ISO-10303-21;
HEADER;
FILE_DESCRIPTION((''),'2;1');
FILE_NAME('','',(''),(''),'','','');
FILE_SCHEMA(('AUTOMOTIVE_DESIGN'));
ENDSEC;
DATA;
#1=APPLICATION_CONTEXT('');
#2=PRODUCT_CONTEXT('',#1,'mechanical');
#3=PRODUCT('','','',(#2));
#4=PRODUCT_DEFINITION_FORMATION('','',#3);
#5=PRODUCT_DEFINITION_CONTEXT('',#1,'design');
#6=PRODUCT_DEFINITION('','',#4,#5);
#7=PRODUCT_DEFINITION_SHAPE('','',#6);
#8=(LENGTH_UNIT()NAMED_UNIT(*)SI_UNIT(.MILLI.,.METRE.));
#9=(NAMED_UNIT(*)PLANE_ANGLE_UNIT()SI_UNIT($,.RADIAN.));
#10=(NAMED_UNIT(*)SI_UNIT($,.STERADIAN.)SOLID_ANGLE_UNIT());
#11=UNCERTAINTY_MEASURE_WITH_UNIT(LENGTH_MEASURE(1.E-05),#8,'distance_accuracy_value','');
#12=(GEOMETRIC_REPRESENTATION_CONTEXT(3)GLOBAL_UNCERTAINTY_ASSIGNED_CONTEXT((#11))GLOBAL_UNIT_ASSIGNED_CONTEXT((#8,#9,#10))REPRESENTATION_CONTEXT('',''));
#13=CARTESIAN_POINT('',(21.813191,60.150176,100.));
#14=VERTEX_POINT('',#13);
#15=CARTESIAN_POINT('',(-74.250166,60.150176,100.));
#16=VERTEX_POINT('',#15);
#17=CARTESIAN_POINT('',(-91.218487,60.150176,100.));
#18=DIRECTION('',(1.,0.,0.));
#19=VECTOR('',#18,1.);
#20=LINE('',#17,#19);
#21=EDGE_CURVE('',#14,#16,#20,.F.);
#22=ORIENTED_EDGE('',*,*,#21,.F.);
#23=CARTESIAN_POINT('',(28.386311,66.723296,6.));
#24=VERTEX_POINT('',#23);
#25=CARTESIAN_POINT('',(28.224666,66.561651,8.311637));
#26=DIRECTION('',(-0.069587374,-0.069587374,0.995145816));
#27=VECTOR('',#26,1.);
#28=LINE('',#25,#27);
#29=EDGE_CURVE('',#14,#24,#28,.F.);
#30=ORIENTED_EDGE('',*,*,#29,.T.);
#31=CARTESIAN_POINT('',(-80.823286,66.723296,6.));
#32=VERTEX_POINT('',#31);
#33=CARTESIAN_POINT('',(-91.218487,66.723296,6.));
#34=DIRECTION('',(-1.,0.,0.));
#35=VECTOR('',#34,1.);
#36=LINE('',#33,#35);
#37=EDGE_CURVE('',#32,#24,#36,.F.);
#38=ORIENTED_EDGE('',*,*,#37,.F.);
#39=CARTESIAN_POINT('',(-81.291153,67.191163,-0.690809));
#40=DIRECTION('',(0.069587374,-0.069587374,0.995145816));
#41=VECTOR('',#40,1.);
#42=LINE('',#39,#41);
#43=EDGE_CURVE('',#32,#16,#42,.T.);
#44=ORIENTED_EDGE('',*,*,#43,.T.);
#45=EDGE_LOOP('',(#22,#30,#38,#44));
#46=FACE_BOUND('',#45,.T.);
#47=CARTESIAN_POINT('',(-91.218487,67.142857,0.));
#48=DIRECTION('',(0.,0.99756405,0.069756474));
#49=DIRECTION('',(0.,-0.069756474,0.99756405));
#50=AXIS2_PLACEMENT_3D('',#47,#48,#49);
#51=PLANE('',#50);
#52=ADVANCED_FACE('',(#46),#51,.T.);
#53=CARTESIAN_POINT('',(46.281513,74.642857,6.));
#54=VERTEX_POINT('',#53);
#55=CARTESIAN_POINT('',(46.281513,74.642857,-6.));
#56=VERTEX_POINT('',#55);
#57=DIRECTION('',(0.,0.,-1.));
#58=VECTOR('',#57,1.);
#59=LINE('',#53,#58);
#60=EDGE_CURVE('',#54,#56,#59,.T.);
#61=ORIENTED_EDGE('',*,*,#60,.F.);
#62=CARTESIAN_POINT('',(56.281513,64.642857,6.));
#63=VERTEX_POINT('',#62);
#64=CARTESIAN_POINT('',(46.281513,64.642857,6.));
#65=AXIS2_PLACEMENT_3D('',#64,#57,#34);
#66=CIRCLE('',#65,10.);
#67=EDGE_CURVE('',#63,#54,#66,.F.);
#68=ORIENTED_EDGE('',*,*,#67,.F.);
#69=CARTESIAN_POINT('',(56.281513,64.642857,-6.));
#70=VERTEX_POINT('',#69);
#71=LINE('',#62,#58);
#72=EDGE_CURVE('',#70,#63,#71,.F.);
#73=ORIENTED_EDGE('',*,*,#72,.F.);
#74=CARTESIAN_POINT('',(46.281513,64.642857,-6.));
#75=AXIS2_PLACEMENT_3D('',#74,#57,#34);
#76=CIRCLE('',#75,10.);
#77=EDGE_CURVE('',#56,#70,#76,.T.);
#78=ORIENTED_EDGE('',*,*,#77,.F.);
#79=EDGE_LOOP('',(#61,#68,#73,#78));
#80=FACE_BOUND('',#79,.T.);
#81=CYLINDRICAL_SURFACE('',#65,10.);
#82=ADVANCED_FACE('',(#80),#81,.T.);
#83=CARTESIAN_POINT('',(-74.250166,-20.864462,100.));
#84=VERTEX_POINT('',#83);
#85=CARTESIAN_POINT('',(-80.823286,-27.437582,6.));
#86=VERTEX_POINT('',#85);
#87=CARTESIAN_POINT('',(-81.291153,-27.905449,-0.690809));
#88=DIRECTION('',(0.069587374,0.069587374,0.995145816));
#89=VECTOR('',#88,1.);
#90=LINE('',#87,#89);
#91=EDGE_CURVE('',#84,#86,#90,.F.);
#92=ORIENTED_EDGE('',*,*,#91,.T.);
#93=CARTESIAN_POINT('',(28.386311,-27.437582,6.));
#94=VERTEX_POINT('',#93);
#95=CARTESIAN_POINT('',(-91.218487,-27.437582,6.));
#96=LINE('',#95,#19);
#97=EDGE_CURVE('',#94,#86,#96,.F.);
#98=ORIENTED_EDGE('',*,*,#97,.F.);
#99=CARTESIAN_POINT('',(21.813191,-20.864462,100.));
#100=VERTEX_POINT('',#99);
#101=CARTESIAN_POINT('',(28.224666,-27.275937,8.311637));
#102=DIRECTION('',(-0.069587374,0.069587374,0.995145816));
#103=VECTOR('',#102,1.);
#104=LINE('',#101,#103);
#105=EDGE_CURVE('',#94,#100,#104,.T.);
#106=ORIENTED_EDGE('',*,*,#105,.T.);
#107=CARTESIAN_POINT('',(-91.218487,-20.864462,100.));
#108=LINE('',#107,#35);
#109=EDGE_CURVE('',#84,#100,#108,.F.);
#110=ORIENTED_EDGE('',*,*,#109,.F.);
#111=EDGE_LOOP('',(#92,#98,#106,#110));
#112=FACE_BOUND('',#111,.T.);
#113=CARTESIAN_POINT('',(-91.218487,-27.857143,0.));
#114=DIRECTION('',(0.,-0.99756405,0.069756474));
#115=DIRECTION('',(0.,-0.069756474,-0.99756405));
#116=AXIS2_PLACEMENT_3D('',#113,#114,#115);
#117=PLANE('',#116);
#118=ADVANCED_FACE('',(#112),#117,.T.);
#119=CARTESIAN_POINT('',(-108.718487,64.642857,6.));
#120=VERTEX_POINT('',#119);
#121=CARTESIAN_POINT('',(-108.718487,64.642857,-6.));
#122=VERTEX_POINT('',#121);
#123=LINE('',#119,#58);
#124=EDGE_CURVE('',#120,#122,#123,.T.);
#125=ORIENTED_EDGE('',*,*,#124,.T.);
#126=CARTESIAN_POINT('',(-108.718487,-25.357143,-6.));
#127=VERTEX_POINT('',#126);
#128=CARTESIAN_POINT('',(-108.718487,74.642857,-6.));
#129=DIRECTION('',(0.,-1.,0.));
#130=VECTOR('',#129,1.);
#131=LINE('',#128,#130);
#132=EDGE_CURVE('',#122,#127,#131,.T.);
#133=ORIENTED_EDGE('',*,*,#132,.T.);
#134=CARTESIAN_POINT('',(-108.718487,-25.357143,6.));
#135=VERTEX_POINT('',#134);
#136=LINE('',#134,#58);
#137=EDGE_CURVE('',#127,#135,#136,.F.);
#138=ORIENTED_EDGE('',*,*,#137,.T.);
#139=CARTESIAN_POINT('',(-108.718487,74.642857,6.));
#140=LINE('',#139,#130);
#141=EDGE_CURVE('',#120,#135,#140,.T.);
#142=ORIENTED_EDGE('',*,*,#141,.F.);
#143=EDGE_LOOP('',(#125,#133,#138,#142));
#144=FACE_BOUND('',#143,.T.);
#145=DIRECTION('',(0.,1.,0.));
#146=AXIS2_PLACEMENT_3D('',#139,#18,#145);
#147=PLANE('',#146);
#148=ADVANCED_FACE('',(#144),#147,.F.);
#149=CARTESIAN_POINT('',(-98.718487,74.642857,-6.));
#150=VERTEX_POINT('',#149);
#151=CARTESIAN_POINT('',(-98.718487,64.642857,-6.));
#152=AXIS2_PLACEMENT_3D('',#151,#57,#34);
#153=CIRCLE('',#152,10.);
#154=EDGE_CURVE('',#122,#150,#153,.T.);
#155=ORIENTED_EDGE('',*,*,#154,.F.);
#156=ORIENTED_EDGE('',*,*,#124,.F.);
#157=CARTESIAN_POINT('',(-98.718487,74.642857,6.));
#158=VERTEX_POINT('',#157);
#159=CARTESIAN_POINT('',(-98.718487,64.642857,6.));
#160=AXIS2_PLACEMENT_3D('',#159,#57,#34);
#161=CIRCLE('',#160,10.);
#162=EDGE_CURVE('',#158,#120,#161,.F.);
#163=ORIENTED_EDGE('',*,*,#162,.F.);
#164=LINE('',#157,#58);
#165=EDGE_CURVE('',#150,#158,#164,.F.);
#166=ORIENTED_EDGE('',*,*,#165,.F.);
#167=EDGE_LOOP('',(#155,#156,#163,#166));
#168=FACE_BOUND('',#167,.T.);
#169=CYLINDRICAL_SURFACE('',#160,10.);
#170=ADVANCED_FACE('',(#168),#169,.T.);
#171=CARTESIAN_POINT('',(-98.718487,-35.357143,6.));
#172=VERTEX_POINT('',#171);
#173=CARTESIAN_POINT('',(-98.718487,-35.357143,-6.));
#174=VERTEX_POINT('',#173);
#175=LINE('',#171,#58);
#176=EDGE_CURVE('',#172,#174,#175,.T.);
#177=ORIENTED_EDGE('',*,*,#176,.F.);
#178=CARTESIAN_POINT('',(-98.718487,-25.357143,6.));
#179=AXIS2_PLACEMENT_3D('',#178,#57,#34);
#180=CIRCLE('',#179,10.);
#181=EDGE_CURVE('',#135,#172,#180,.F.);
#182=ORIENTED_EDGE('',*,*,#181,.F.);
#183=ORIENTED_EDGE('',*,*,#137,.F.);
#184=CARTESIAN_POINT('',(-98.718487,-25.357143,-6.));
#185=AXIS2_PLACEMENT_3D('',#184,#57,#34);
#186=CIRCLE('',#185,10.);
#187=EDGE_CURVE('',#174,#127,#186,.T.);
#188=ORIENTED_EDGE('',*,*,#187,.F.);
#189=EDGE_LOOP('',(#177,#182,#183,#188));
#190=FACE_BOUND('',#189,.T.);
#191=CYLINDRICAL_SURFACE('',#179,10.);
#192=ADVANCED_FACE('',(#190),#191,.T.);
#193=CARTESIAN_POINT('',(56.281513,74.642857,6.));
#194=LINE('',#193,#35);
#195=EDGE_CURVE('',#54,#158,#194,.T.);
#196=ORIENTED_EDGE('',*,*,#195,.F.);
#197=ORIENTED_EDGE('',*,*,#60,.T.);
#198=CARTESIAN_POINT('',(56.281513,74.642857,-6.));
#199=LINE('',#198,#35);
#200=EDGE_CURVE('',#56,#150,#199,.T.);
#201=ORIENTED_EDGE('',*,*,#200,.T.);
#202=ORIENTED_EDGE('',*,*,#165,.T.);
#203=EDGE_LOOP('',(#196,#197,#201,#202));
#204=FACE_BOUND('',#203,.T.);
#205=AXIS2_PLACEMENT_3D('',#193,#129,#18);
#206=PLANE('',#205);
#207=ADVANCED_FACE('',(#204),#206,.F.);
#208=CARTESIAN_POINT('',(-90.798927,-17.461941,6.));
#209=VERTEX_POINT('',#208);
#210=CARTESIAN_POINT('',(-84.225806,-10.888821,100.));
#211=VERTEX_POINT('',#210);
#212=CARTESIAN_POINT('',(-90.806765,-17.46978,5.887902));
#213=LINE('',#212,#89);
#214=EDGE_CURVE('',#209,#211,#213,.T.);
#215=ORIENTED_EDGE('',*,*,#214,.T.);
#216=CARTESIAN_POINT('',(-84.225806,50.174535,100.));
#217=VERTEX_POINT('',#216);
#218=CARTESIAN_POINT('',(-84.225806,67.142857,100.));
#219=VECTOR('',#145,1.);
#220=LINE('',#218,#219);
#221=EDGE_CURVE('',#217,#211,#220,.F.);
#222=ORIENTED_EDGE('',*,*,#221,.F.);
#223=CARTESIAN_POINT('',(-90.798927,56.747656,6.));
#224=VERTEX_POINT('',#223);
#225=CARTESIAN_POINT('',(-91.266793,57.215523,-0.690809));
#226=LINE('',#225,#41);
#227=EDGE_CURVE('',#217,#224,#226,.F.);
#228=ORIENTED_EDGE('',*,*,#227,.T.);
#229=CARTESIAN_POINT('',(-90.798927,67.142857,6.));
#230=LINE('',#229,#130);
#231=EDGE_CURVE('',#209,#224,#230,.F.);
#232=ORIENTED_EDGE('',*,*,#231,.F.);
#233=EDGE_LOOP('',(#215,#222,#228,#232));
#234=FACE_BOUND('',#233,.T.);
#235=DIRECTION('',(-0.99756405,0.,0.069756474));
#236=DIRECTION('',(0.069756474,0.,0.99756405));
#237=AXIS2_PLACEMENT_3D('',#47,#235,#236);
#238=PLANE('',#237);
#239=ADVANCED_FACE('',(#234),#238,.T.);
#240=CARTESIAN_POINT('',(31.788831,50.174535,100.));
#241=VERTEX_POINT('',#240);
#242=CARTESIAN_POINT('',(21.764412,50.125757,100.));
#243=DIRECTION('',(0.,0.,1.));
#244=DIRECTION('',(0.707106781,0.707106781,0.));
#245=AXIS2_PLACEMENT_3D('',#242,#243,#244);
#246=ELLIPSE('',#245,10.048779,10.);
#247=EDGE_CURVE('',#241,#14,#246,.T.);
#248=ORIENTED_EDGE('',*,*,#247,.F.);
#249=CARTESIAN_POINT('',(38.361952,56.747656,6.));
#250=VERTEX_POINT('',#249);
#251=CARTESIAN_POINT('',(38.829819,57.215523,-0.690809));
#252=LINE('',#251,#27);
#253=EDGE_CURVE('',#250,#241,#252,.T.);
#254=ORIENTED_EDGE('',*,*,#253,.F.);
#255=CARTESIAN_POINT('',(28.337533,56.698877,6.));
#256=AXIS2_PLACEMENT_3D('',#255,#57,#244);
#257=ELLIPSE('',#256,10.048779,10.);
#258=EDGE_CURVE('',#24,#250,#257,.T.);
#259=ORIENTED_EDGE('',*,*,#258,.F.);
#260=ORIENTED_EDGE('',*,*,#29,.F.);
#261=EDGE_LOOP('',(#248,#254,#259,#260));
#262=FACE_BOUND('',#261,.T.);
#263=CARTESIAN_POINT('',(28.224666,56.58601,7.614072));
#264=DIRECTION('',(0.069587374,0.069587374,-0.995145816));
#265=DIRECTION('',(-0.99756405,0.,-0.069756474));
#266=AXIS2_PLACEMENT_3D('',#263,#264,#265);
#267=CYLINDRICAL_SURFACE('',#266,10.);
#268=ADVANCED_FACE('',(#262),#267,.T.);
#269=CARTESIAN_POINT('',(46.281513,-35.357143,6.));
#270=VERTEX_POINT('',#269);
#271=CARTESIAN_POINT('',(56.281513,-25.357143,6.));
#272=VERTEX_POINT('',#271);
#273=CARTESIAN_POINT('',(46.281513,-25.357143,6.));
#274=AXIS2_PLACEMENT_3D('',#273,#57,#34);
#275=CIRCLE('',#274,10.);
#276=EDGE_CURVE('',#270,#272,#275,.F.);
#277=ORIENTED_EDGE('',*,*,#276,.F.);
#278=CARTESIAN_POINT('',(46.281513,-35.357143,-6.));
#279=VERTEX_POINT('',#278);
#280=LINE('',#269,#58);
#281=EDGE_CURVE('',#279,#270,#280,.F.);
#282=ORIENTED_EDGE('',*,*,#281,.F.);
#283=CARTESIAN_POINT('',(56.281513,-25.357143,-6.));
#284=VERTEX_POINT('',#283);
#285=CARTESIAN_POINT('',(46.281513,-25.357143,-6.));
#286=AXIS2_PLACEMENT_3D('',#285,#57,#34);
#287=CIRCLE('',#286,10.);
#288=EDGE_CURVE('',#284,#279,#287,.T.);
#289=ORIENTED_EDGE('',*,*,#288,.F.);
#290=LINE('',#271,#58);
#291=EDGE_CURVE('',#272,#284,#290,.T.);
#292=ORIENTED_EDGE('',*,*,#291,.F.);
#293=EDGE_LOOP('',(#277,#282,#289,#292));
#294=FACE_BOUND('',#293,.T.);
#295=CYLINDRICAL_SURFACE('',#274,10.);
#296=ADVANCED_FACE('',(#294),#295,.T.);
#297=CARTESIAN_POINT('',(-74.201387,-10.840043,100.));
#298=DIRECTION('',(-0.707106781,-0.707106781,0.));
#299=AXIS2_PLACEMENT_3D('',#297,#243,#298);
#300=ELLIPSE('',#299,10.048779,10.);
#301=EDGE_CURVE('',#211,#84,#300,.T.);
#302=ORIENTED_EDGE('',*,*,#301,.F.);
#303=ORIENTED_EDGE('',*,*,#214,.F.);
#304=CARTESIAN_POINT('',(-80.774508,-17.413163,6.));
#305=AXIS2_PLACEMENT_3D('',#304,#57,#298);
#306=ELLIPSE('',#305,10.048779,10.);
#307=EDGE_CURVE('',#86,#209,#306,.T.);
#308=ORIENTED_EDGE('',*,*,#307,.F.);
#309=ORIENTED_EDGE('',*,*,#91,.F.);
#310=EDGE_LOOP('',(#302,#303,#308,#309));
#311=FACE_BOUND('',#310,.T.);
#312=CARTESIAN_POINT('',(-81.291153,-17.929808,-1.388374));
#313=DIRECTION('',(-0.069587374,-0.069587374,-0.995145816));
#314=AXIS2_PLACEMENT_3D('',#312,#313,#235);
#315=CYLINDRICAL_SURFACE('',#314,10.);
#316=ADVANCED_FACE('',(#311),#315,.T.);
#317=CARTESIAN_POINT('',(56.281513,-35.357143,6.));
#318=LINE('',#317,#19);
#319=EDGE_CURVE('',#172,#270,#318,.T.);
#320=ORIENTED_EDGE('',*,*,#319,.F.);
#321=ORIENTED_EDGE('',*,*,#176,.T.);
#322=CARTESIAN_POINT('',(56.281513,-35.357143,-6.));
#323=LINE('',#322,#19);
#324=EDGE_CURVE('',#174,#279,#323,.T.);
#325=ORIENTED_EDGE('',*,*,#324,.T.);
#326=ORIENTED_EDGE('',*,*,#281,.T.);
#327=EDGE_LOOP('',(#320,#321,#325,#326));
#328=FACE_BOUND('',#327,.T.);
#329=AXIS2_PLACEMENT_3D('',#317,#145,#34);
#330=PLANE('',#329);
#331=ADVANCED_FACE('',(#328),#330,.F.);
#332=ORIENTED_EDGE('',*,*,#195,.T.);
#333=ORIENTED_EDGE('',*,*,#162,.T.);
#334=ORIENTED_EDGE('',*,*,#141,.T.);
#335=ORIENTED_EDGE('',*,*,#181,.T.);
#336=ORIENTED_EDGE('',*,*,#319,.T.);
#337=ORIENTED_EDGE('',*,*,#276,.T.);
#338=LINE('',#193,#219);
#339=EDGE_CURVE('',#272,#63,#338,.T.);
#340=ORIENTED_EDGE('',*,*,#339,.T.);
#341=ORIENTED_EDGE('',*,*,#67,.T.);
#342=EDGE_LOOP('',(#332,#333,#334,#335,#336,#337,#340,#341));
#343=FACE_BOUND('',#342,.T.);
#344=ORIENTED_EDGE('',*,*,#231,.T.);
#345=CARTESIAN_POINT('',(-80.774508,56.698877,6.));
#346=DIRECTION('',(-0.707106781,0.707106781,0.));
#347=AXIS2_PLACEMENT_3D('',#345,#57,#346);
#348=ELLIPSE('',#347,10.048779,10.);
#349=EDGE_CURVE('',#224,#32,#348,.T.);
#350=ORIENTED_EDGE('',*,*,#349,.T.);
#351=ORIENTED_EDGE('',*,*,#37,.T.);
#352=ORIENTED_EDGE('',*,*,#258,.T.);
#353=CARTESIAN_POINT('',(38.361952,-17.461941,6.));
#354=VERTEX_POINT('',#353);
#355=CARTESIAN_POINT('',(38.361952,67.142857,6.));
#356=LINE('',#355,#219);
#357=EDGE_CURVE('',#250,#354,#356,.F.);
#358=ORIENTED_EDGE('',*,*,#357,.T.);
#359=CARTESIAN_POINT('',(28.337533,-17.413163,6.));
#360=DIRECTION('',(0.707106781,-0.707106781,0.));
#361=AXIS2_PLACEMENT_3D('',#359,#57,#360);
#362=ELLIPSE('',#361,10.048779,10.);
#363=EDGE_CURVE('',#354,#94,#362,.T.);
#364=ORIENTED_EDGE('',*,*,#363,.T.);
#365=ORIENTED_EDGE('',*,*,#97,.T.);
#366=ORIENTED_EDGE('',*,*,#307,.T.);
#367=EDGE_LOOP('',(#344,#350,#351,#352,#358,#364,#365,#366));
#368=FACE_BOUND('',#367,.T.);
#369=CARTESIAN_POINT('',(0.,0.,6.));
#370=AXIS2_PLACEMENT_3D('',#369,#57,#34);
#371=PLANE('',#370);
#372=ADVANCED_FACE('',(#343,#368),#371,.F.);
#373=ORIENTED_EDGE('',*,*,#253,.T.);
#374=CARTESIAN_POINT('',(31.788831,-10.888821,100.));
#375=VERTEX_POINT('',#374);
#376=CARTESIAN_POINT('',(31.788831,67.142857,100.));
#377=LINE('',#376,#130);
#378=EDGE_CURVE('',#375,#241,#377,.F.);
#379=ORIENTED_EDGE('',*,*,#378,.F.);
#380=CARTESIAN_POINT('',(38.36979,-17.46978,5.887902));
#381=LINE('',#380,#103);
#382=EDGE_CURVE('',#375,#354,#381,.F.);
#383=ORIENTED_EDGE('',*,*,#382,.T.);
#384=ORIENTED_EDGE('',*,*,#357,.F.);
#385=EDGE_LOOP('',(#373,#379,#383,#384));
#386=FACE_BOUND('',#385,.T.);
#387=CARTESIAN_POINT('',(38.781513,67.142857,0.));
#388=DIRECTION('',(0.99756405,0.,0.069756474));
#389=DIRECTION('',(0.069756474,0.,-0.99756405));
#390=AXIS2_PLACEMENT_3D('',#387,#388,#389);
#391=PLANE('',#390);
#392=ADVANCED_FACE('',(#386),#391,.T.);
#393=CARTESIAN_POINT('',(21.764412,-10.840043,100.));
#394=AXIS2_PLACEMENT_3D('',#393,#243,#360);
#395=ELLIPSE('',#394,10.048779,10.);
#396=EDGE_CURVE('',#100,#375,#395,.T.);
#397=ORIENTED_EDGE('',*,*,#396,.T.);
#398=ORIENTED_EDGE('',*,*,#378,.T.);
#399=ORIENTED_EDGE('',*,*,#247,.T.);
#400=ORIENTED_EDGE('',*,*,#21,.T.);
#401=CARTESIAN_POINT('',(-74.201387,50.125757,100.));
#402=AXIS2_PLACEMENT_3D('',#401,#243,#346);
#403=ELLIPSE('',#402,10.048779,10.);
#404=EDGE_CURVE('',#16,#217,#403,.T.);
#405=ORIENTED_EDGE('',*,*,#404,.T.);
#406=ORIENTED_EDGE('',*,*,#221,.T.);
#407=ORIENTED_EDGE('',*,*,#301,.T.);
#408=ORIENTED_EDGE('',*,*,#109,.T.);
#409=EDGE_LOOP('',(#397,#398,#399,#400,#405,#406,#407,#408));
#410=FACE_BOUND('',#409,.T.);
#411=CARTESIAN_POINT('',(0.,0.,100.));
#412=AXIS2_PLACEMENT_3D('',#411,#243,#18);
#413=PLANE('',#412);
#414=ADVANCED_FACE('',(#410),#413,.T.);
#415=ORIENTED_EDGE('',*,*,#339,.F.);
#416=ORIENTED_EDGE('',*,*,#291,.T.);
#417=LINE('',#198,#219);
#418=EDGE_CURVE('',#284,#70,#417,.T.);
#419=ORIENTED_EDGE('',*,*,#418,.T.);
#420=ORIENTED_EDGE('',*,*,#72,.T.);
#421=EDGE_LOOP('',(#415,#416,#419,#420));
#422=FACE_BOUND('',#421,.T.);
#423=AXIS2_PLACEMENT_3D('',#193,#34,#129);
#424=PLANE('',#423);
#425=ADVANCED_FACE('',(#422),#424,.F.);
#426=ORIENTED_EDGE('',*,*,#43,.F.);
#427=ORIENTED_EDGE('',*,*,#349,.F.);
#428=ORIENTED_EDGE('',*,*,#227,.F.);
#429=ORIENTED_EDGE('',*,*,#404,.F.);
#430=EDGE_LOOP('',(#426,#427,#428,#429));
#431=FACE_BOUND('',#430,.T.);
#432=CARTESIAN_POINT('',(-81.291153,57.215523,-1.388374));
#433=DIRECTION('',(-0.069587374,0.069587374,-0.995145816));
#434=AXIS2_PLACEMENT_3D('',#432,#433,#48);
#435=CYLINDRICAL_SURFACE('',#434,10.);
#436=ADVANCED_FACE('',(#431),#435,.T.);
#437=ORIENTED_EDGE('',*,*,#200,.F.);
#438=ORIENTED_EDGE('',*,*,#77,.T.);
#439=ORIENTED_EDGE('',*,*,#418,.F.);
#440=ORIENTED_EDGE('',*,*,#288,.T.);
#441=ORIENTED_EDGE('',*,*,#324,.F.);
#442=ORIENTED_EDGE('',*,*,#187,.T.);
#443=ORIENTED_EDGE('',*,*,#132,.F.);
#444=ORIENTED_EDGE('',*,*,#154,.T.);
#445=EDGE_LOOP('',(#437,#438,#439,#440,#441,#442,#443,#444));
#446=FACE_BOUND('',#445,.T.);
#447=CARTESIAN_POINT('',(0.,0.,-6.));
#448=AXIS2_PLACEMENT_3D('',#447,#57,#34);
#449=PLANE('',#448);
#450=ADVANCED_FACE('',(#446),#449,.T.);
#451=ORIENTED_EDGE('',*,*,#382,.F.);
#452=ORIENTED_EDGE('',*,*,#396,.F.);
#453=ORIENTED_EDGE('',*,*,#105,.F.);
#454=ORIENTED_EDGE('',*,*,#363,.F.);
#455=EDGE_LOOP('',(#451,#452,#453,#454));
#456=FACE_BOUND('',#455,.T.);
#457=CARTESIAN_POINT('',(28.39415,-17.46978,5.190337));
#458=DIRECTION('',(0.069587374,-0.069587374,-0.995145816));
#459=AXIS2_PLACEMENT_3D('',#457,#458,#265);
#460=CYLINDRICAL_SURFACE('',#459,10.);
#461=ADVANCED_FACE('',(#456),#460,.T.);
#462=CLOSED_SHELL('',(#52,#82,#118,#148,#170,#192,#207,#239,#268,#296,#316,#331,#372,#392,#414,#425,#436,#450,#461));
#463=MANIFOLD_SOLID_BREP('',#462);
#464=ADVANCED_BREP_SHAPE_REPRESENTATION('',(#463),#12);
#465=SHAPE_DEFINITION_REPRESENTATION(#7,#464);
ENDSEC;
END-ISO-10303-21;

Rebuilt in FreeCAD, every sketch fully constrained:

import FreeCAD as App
import Part
import Sketcher

V = App.Vector


def edges_at(feature, points):
    """Names of the edges that pass closest to the given points."""
    edges = feature.Shape.Edges
    near = lambda p: min(range(len(edges)), key=lambda i: edges[i].distToShape(Part.Vertex(*p))[0])
    return sorted({f"Edge{near(p) + 1}" for p in points})


def add_polygon(sketch, points):
    """Adds a closed chain of lines whose ends are joined by coincident constraints."""
    first, n = sketch.GeometryCount, len(points)
    for a, b in zip(points, points[1:] + points[:1]):
        sketch.addGeometry(Part.LineSegment(App.Vector(*a, 0), App.Vector(*b, 0)), False)
    for i in range(n):
        sketch.addConstraint(Sketcher.Constraint("Coincident", first + i, 2, first + (i + 1) % n, 1))

doc = App.newDocument("Part")
params = doc.addObject("Spreadsheet::Sheet", "Params")
for row, (alias, value) in enumerate([
    ("sketch1_width", "130 mm"),
    ("sketch1_height", "95 mm"),
    ("pad1_length", "100 mm"),
    ("pad1_taper", "-4 deg"),
    ("sketch2_width", "165 mm"),
    ("sketch2_height", "110 mm"),
    ("pad2_length", "12 mm"),
    ("fillet_radius", "10 mm"),
    ("fillet2_radius", "10 mm"),
], start=1):
    params.set(f"A{row}", alias)
    params.set(f"B{row}", "=" + value)
    params.setAlias(f"B{row}", alias)

body = doc.addObject("PartDesign::Body", "Body")

# Sketch on XY plane
sketch1 = doc.addObject("Sketcher::SketchObject", "Sketch")
body.addObject(sketch1)
sketch1.AttachmentSupport = (doc.XY_Plane, [""])
sketch1.MapMode = "FlatFace"
add_polygon(sketch1, [(-91, 67), (-91, -28), (39, -28), (39, 67)])  # lines 0-3
sketch1.addConstraint([
    Sketcher.Constraint("Vertical", 0),
    Sketcher.Constraint("Horizontal", 1),
    Sketcher.Constraint("Vertical", 2),
    Sketcher.Constraint("Horizontal", 3),
    Sketcher.Constraint("DistanceX", 1, 1, 1, 2, 130.0),
    Sketcher.Constraint("DistanceY", 0, 2, 0, 1, 95.0),
    Sketcher.Constraint("DistanceX", 0, 2, -1, 1, 91.218487),
    Sketcher.Constraint("DistanceY", 0, 2, -1, 1, 27.857143),
])
sketch1.setExpression("Constraints[8]", "Params.sketch1_width")
sketch1.setExpression("Constraints[9]", "Params.sketch1_height")
pad1 = doc.addObject("PartDesign::Pad", "Pad")
body.addObject(pad1)
pad1.Profile = sketch1
pad1.setExpression("Length", "Params.pad1_length")
pad1.setExpression("TaperAngle", "Params.pad1_taper")

# Sketch on XY plane
sketch2 = doc.addObject("Sketcher::SketchObject", "Sketch001")
body.addObject(sketch2)
sketch2.AttachmentSupport = (doc.XY_Plane, [""])
sketch2.MapMode = "FlatFace"
add_polygon(sketch2, [(-109, 75), (-109, -35), (56, -35), (56, 75)])  # lines 0-3
sketch2.addConstraint([
    Sketcher.Constraint("Vertical", 0),
    Sketcher.Constraint("Horizontal", 1),
    Sketcher.Constraint("Vertical", 2),
    Sketcher.Constraint("Horizontal", 3),
    Sketcher.Constraint("DistanceX", 1, 1, 1, 2, 165.0),
    Sketcher.Constraint("DistanceY", 0, 2, 0, 1, 110.0),
    Sketcher.Constraint("DistanceX", 0, 2, -1, 1, 108.718487),
    Sketcher.Constraint("DistanceY", 0, 2, -1, 1, 35.357143),
])
sketch2.setExpression("Constraints[8]", "Params.sketch2_width")
sketch2.setExpression("Constraints[9]", "Params.sketch2_height")
pad2 = doc.addObject("PartDesign::Pad", "Pad001")
body.addObject(pad2)
pad2.Profile = sketch2
pad2.setExpression("Length", "Params.pad2_length")
pad2.Midplane = True
doc.recompute()

fillet = doc.addObject("PartDesign::Fillet", "Fillet")
body.addObject(fillet)
fillet.Base = (pad2, edges_at(pad2, [
    (-87.512, 63.437, 53),
    (35.075, 63.437, 53),
    (35.075, -24.151, 53),
    (-87.512, -24.151, 53),
]))
fillet.setExpression("Radius", "Params.fillet_radius")
doc.recompute()

fillet2 = doc.addObject("PartDesign::Fillet", "Fillet001")
body.addObject(fillet2)
fillet2.Base = (fillet, edges_at(fillet, [
    (56.282, -35.357, 0),
    (56.282, 74.643, 0),
    (-108.718, 74.643, 0),
    (-108.718, -35.357, 0),
]))
fillet2.setExpression("Radius", "Params.fillet2_radius")

doc.recompute()
